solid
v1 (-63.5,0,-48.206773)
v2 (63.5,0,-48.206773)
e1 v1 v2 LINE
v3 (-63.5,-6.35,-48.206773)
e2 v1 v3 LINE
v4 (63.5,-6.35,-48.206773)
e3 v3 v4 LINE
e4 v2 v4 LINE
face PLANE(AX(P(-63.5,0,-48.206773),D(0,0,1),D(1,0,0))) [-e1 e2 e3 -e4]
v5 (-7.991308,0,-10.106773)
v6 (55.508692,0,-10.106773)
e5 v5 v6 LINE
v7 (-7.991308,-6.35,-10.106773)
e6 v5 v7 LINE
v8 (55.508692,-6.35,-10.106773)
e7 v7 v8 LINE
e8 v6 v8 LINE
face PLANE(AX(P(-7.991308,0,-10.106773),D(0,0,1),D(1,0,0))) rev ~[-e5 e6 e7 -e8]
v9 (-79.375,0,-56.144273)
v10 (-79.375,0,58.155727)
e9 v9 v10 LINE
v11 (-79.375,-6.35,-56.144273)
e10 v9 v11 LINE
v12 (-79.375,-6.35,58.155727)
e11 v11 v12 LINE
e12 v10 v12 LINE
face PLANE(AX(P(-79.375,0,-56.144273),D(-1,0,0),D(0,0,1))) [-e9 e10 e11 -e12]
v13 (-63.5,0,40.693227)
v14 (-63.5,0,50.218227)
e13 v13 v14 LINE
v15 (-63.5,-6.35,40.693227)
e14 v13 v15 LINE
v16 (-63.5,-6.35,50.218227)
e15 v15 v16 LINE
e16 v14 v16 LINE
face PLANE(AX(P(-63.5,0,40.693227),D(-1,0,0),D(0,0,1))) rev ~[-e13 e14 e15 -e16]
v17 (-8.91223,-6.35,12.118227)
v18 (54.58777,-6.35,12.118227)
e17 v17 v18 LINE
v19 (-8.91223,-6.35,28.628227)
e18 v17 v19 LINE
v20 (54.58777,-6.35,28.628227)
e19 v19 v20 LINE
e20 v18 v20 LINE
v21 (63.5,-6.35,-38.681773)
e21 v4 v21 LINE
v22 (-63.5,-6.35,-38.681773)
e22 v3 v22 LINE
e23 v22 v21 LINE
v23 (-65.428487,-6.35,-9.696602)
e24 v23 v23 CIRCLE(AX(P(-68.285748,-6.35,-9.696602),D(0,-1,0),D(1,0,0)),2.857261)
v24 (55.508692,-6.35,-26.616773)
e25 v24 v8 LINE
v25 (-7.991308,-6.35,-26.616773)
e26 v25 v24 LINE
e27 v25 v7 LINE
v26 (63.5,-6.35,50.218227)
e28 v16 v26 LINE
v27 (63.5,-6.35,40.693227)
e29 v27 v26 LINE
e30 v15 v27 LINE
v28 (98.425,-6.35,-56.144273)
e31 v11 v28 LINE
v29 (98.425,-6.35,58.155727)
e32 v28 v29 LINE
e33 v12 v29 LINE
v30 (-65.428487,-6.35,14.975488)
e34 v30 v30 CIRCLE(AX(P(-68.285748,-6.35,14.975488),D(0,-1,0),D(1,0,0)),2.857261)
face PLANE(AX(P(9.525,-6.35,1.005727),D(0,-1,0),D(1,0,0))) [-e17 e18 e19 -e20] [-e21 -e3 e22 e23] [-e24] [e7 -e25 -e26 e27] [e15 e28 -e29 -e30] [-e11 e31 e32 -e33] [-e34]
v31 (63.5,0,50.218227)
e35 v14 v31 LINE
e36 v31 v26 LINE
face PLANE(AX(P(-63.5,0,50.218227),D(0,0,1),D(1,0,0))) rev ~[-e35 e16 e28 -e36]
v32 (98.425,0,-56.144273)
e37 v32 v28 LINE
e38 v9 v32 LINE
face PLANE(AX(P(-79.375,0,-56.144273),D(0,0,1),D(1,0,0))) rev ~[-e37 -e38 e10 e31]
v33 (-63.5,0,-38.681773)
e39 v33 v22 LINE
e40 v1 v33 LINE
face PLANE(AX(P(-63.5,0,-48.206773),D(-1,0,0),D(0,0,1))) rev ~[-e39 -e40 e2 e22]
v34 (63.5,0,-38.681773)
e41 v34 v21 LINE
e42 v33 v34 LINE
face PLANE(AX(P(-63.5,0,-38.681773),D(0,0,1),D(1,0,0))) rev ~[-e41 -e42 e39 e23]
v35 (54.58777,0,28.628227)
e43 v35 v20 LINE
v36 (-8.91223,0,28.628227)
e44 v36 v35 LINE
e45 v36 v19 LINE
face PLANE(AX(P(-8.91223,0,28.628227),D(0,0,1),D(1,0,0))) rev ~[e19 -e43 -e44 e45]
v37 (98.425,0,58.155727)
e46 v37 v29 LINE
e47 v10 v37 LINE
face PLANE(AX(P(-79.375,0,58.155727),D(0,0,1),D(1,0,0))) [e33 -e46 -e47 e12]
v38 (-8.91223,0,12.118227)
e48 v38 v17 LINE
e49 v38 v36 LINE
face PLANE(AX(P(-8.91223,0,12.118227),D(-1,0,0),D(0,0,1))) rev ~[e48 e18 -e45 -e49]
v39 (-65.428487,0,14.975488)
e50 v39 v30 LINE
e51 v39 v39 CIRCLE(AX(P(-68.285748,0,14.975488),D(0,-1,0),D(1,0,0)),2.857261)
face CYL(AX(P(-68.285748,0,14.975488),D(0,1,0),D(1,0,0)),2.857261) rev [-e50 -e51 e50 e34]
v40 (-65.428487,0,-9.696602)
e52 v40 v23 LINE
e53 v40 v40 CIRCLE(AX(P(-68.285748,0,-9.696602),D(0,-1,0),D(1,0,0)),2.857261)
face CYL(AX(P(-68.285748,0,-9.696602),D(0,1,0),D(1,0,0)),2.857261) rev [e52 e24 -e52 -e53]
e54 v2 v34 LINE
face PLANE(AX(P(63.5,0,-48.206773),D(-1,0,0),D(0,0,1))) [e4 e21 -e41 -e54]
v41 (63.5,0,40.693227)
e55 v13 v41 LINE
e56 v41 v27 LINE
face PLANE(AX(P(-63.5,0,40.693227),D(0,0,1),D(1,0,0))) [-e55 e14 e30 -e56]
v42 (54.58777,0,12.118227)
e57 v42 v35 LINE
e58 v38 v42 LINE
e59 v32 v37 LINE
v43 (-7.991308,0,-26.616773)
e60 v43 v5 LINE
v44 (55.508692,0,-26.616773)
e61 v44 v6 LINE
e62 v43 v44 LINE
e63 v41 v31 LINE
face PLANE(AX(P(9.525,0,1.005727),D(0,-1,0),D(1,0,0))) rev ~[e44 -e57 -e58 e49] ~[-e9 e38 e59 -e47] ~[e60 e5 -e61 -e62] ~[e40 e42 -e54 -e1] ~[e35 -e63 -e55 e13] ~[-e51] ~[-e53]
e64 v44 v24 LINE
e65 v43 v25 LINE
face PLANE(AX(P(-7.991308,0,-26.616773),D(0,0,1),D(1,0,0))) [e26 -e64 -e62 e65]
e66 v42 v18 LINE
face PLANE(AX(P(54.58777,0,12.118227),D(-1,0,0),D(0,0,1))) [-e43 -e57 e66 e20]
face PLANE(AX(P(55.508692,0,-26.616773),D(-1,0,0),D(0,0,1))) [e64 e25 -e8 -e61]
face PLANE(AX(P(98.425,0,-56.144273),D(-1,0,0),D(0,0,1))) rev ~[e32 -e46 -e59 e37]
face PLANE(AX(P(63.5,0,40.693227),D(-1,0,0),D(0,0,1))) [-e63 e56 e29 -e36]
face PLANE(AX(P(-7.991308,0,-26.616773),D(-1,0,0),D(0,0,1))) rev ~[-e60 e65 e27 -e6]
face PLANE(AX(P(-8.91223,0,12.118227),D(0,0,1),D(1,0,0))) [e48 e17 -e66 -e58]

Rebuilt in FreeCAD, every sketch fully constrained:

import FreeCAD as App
import Part
import Sketcher
from FreeCAD import Vector
Q = App.Units.Quantity


def add_polygon(sketch, points):
    """Adds a closed chain of lines whose ends are joined by coincident constraints."""
    first, n = sketch.GeometryCount, len(points)
    for a, b in zip(points, points[1:] + points[:1]):
        sketch.addGeometry(Part.LineSegment(App.Vector(*a, 0), App.Vector(*b, 0)), False)
    for i in range(n):
        sketch.addConstraint(Sketcher.Constraint("Coincident", first + i, 2, first + (i + 1) % n, 1))

doc = App.newDocument("Part")
params = doc.addObject("Spreadsheet::Sheet", "Params")
for row, (alias, value) in enumerate([
    ("sketch1_width", "7 in"),
    ("sketch1_width2", "5 in"),
    ("sketch1_width3", "2.5 in"),
    ("sketch1_height", "4.5 in"),
    ("sketch1_height2", "0.65 in"),
    ("pad1_length", "0.25 in"),
], start=1):
    params.set(f"A{row}", alias)
    params.set(f"B{row}", "=" + value)
    params.setAlias(f"B{row}", alias)

body = doc.addObject("PartDesign::Body", "Body")

sketch1 = body.newObject("Sketcher::SketchObject", "Sketch")
sketch1.AttachmentSupport = (doc.getObject("XZ_Plane"), [""])
sketch1.MapMode = "FlatFace"
add_polygon(sketch1, [(-79.4, 58.2), (-79.4, -56.1), (98.4, -56.1), (98.4, 58.2)])
sketch1.addGeometry(Part.Circle(Vector(-68.3, -9.7, 0), Vector(0, 0, 1), 2.9), False)
add_polygon(sketch1, [(63.5, -48.2), (-63.5, -48.2), (-63.5, -38.7), (63.5, -38.7)])
add_polygon(sketch1, [(55.5, -26.6), (-8, -26.6), (-8, -10.1), (55.5, -10.1)])
sketch1.addGeometry(Part.Circle(Vector(-68.3, 15, 0), Vector(0, 0, 1), 2.9), False)
add_polygon(sketch1, [(54.6, 12.1), (-8.9, 12.1), (-8.9, 28.6), (54.6, 28.6)])
add_polygon(sketch1, [(63.5, 40.7), (-63.5, 40.7), (-63.5, 50.2), (63.5, 50.2)])
sketch1.addConstraint([
    Sketcher.Constraint("Vertical", 0),
    Sketcher.Constraint("Horizontal", 1),
    Sketcher.Constraint("Vertical", 2),
    Sketcher.Constraint("Horizontal", 3),
    Sketcher.Constraint("Horizontal", 5),
    Sketcher.Constraint("Vertical", 6),
    Sketcher.Constraint("Horizontal", 7),
    Sketcher.Constraint("Vertical", 8),
    Sketcher.Constraint("Horizontal", 9),
    Sketcher.Constraint("Vertical", 10),
    Sketcher.Constraint("Horizontal", 11),
    Sketcher.Constraint("Vertical", 12),
    Sketcher.Constraint("Horizontal", 14),
    Sketcher.Constraint("Vertical", 15),
    Sketcher.Constraint("Horizontal", 16),
    Sketcher.Constraint("Vertical", 17),
    Sketcher.Constraint("Horizontal", 18),
    Sketcher.Constraint("Vertical", 19),
    Sketcher.Constraint("Horizontal", 20),
    Sketcher.Constraint("Vertical", 21),
    Sketcher.Constraint("Equal", 4, 13),
    Sketcher.Constraint("Vertical", 4, 3, 13, 3),
    Sketcher.Constraint("Vertical", 6, 2, 18, 2),
    Sketcher.Constraint("Vertical", 8, 2, 20, 2),
    Sketcher.Constraint("Equal", 11, 14),
    Sketcher.Constraint("Equal", 12, 15),
    Sketcher.Constraint("Equal", 8, 19),
    Sketcher.Constraint("DistanceX", 1, 1, 1, 2, Q("7 in")),
    Sketcher.Constraint("DistanceX", 5, 2, 5, 1, Q("5 in")),
    Sketcher.Constraint("DistanceX", 9, 2, 9, 1, Q("2.5 in")),
    Sketcher.Constraint("DistanceY", 0, 2, 0, 1, Q("4.5 in")),
    Sketcher.Constraint("DistanceY", 7, 2, 17, 2, Q("2 in")),
    Sketcher.Constraint("DistanceY", 11, 2, 21, 2, Q("2 in")),
    Sketcher.Constraint("DistanceY", 10, 1, 10, 2, Q("0.65 in")),
    Sketcher.Constraint("DistanceX", 5, 2, -1, 1, Q("2.5 in")),
    Sketcher.Constraint("DistanceY", 5, 2, 10, 2, Q("1.5 in")),
    Sketcher.Constraint("DistanceY", 6, 1, 6, 2, Q("0.375 in")),
    Sketcher.Constraint("Diameter", 4, 5.714522),
    Sketcher.Constraint("DistanceX", 0, 2, -1, 1, Q("3.125 in")),
    Sketcher.Constraint("DistanceY", 0, 2, 5, 2, Q("0.3125 in")),
    Sketcher.Constraint("DistanceX", 4, 3, -1, 1, 68.285748),
    Sketcher.Constraint("DistanceX", 14, 2, -1, 1, 8.91223),
    Sketcher.Constraint("DistanceY", 4, 3, 13, 3, 24.67209),
    Sketcher.Constraint("DistanceY", 0, 2, 4, 3, 46.447671),
    Sketcher.Constraint("DistanceX", 6, 2, 9, 2, 55.508692),
    Sketcher.Constraint("DistanceY", 4, 3, -1, 1, 9.696602),
])
sketch1.setExpression("Constraints[47]", "Params.sketch1_width")
sketch1.setExpression("Constraints[48]", "Params.sketch1_width2")
sketch1.setExpression("Constraints[49]", "Params.sketch1_width3")
sketch1.setExpression("Constraints[50]", "Params.sketch1_height")
sketch1.setExpression("Constraints[53]", "Params.sketch1_height2")
pad1 = body.newObject("PartDesign::Pad", "Pad")
pad1.Profile = sketch1
pad1.setExpression("Length", "Params.pad1_length")

doc.recompute()
